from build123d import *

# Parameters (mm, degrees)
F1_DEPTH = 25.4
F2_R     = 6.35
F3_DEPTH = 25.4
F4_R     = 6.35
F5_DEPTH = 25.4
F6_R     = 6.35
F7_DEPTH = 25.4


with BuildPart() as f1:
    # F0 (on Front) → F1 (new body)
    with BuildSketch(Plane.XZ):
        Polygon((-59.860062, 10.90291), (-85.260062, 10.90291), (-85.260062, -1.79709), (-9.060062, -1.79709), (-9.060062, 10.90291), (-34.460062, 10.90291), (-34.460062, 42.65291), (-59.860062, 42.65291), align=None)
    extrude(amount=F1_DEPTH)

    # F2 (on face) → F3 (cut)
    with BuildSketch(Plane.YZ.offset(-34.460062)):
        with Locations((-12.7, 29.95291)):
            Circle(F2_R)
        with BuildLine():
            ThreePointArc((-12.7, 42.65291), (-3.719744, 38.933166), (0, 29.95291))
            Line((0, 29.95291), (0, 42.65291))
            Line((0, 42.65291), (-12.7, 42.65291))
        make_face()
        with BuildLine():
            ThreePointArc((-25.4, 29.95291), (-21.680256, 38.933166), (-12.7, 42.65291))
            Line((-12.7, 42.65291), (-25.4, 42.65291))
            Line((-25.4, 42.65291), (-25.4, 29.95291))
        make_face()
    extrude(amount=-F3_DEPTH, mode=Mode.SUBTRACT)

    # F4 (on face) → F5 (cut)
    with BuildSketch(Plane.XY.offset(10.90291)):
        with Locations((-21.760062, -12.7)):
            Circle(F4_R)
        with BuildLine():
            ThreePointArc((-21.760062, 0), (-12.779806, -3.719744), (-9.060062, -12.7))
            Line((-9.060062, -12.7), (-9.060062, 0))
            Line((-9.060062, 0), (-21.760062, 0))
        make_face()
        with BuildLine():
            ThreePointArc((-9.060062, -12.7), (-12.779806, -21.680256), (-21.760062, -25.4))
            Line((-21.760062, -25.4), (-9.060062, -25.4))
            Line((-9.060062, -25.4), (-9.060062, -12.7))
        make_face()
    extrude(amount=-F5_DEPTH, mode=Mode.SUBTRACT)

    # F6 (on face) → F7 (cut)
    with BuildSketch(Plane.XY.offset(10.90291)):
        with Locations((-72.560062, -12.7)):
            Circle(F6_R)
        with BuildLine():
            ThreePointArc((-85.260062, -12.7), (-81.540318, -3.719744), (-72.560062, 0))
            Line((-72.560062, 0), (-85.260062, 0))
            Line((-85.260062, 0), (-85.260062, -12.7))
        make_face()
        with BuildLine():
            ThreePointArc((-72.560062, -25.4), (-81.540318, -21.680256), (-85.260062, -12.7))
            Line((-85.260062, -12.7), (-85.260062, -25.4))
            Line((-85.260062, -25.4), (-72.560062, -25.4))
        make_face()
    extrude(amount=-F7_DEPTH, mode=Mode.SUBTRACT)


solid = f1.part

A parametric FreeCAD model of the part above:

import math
import FreeCAD as App
import Part
import Sketcher

V = App.Vector
Q = App.Units.Quantity


def add_polygon(sketch, points):
    """Adds a closed chain of lines whose ends are joined by coincident constraints."""
    first, n = sketch.GeometryCount, len(points)
    for a, b in zip(points, points[1:] + points[:1]):
        sketch.addGeometry(Part.LineSegment(App.Vector(*a, 0), App.Vector(*b, 0)), False)
    for i in range(n):
        sketch.addConstraint(Sketcher.Constraint("Coincident", first + i, 2, first + (i + 1) % n, 1))

doc = App.newDocument("Part")
params = doc.addObject("Spreadsheet::Sheet", "Params")
for row, (alias, value) in enumerate([
    ("sketch1_width", "1 in"),
    ("sketch1_height", "0.5 in"),
    ("sketch1_height2", "1.25 in"),
    ("pad1_length", "1 in"),
    ("sketch2_diameter", "0.5 in"),
    ("sketch2_radius", "0.5 in"),
    ("pocket1_length", "1 in"),
    ("sketch3_diameter", "0.5 in"),
    ("sketch3_radius", "0.5 in"),
    ("pocket2_length", "1 in"),
    ("sketch4_diameter", "0.5 in"),
    ("sketch4_radius", "0.5 in"),
    ("pocket3_length", "1 in"),
], start=1):
    params.set(f"A{row}", alias)
    params.set(f"B{row}", "=" + value)
    params.setAlias(f"B{row}", alias)

body = doc.addObject("PartDesign::Body", "Body")

# Sketch on XZ plane
sketch1 = doc.addObject("Sketcher::SketchObject", "Sketch")
body.addObject(sketch1)
sketch1.AttachmentSupport = (doc.XZ_Plane, [""])
sketch1.MapMode = "FlatFace"
add_polygon(sketch1, [(-59.860062, 10.90291), (-85.260062, 10.90291), (-85.260062, -1.79709), (-9.060062, -1.79709), (-9.060062, 10.90291), (-34.460062, 10.90291), (-34.460062, 42.65291), (-59.860062, 42.65291)])  # lines 0-7
sketch1.addConstraint(Sketcher.Constraint("Horizontal", 0))
sketch1.addConstraint(Sketcher.Constraint("Vertical", 1))
sketch1.addConstraint(Sketcher.Constraint("Horizontal", 2))
sketch1.addConstraint(Sketcher.Constraint("Vertical", 3))
sketch1.addConstraint(Sketcher.Constraint("Horizontal", 4))
sketch1.addConstraint(Sketcher.Constraint("Vertical", 5))
sketch1.addConstraint(Sketcher.Constraint("Horizontal", 6))
sketch1.addConstraint(Sketcher.Constraint("Vertical", 7))
sketch1.addConstraint(Sketcher.Constraint("Horizontal", 0, 2, 3, 2))
sketch1.addConstraint(Sketcher.Constraint("Equal", 0, 4))
sketch1.addConstraint(Sketcher.Constraint("Equal", 4, 6))
sketch1.addConstraint(Sketcher.Constraint("DistanceX", 0, 2, 0, 1, Q("1 in")))
sketch1.addConstraint(Sketcher.Constraint("DistanceY", 1, 2, 1, 1, Q("0.5 in")))
sketch1.addConstraint(Sketcher.Constraint("DistanceY", 5, 1, 5, 2, Q("1.25 in")))
sketch1.addConstraint(Sketcher.Constraint("DistanceY", -1, 1, 0, 2, 10.90291))
sketch1.addConstraint(Sketcher.Constraint("DistanceX", 0, 2, -1, 1, 85.260062))
sketch1.setExpression("Constraints[19]", "Params.sketch1_width")
sketch1.setExpression("Constraints[20]", "Params.sketch1_height")
sketch1.setExpression("Constraints[21]", "Params.sketch1_height2")
pad1 = doc.addObject("PartDesign::Pad", "Pad")
body.addObject(pad1)
pad1.Profile = sketch1
pad1.setExpression("Length", "Params.pad1_length")

# Sketch on YZ plane
sketch2 = doc.addObject("Sketcher::SketchObject", "Sketch001")
body.addObject(sketch2)
sketch2.AttachmentSupport = (doc.YZ_Plane, [""])
sketch2.MapMode = "FlatFace"
sketch2.AttachmentOffset = App.Placement(V(0, 0, -34.460062), App.Rotation())
sketch2.addGeometry(Part.Circle(V(-12.7, 29.95291, 0), V(0, 0, 1), 6.35), False)
sketch2.addGeometry(Part.ArcOfCircle(Part.Circle(V(-12.7, 29.95291, 0), V(0, 0, 1), 12.7), math.radians(0.000002), math.radians(89.999998)), False)
sketch2.addGeometry(Part.LineSegment(V(0, 29.95291, 0), V(0, 42.65291, 0)), False)
sketch2.addGeometry(Part.LineSegment(V(0, 42.65291, 0), V(-12.7, 42.65291, 0)), False)
sketch2.addGeometry(Part.ArcOfCircle(Part.Circle(V(-12.7, 29.95291, 0), V(0, 0, 1), 12.7), math.radians(90.000002), math.radians(179.999998)), False)
sketch2.addGeometry(Part.LineSegment(V(-12.7, 42.65291, 0), V(-25.4, 42.65291, 0)), False)
sketch2.addGeometry(Part.LineSegment(V(-25.4, 42.65291, 0), V(-25.4, 29.95291, 0)), False)
sketch2.addConstraint(Sketcher.Constraint("Tangent", 1, 1, 2, 1))
sketch2.addConstraint(Sketcher.Constraint("Coincident", 2, 2, 3, 1))
sketch2.addConstraint(Sketcher.Constraint("Tangent", 3, 2, 1, 2))
sketch2.addConstraint(Sketcher.Constraint("Tangent", 4, 1, 5, 1))
sketch2.addConstraint(Sketcher.Constraint("Coincident", 5, 2, 6, 1))
sketch2.addConstraint(Sketcher.Constraint("Tangent", 6, 2, 4, 2))
sketch2.addConstraint(Sketcher.Constraint("Vertical", 2))
sketch2.addConstraint(Sketcher.Constraint("Horizontal", 3))
sketch2.addConstraint(Sketcher.Constraint("Horizontal", 5))
sketch2.addConstraint(Sketcher.Constraint("Vertical", 6))
sketch2.addConstraint(Sketcher.Constraint("Coincident", 1, 3, 0, 3))
sketch2.addConstraint(Sketcher.Constraint("Coincident", 4, 3, 0, 3))
sketch2.addConstraint(Sketcher.Constraint("Equal", 1, 4))
sketch2.addConstraint(Sketcher.Constraint("PointOnObject", 1, 1, -2))
sketch2.addConstraint(Sketcher.Constraint("Diameter", 0, Q("0.5 in")))
sketch2.addConstraint(Sketcher.Constraint("Radius", 1, Q("0.5 in")))
sketch2.addConstraint(Sketcher.Constraint("DistanceY", -1, 1, 0, 3, 29.95291))
sketch2.setExpression("Constraints[14]", "Params.sketch2_diameter")
sketch2.setExpression("Constraints[15]", "Params.sketch2_radius")
pocket1 = doc.addObject("PartDesign::Pocket", "Pocket")
body.addObject(pocket1)
pocket1.Profile = sketch2
pocket1.setExpression("Length", "Params.pocket1_length")

# Sketch on XY plane
sketch3 = doc.addObject("Sketcher::SketchObject", "Sketch002")
body.addObject(sketch3)
sketch3.AttachmentSupport = (doc.XY_Plane, [""])
sketch3.MapMode = "FlatFace"
sketch3.AttachmentOffset = App.Placement(V(0, 0, 10.90291), App.Rotation())
sketch3.addGeometry(Part.Circle(V(-21.760062, -12.7, 0), V(0, 0, 1), 6.35), False)
sketch3.addGeometry(Part.ArcOfCircle(Part.Circle(V(-21.760062, -12.7, 0), V(0, 0, 1), 12.7), math.radians(0.000002), math.radians(89.999998)), False)
sketch3.addGeometry(Part.LineSegment(V(-9.060062, -12.7, 0), V(-9.060062, 0, 0)), False)
sketch3.addGeometry(Part.LineSegment(V(-9.060062, 0, 0), V(-21.760062, 0, 0)), False)
sketch3.addGeometry(Part.ArcOfCircle(Part.Circle(V(-21.760062, -12.7, 0), V(0, 0, 1), 12.7), math.radians(-89.999998), math.radians(-0.000002)), False)
sketch3.addGeometry(Part.LineSegment(V(-21.760062, -25.4, 0), V(-9.060062, -25.4, 0)), False)
sketch3.addGeometry(Part.LineSegment(V(-9.060062, -25.4, 0), V(-9.060062, -12.7, 0)), False)
sketch3.addConstraint(Sketcher.Constraint("Tangent", 1, 1, 2, 1))
sketch3.addConstraint(Sketcher.Constraint("Coincident", 2, 2, 3, 1))
sketch3.addConstraint(Sketcher.Constraint("Tangent", 3, 2, 1, 2))
sketch3.addConstraint(Sketcher.Constraint("Tangent", 4, 1, 5, 1))
sketch3.addConstraint(Sketcher.Constraint("Coincident", 5, 2, 6, 1))
sketch3.addConstraint(Sketcher.Constraint("Tangent", 6, 2, 4, 2))
sketch3.addConstraint(Sketcher.Constraint("Vertical", 2))
sketch3.addConstraint(Sketcher.Constraint("Horizontal", 3))
sketch3.addConstraint(Sketcher.Constraint("Horizontal", 5))
sketch3.addConstraint(Sketcher.Constraint("Vertical", 6))
sketch3.addConstraint(Sketcher.Constraint("Coincident", 1, 3, 0, 3))
sketch3.addConstraint(Sketcher.Constraint("Coincident", 4, 3, 0, 3))
sketch3.addConstraint(Sketcher.Constraint("Equal", 1, 4))
sketch3.addConstraint(Sketcher.Constraint("PointOnObject", 2, 2, -1))
sketch3.addConstraint(Sketcher.Constraint("Diameter", 0, Q("0.5 in")))
sketch3.addConstraint(Sketcher.Constraint("Radius", 1, Q("0.5 in")))
sketch3.addConstraint(Sketcher.Constraint("DistanceX", 0, 3, -1, 1, 21.760062))
sketch3.setExpression("Constraints[14]", "Params.sketch3_diameter")
sketch3.setExpression("Constraints[15]", "Params.sketch3_radius")
pocket2 = doc.addObject("PartDesign::Pocket", "Pocket001")
body.addObject(pocket2)
pocket2.Profile = sketch3
pocket2.setExpression("Length", "Params.pocket2_length")

# Sketch on XY plane
sketch4 = doc.addObject("Sketcher::SketchObject", "Sketch003")
body.addObject(sketch4)
sketch4.AttachmentSupport = (doc.XY_Plane, [""])
sketch4.MapMode = "FlatFace"
sketch4.AttachmentOffset = App.Placement(V(0, 0, 10.90291), App.Rotation())
sketch4.addGeometry(Part.Circle(V(-72.560062, -12.7, 0), V(0, 0, 1), 6.35), False)
sketch4.addGeometry(Part.ArcOfCircle(Part.Circle(V(-72.560062, -12.7, 0), V(0, 0, 1), 12.7), math.radians(90.000002), math.radians(179.999998)), False)
sketch4.addGeometry(Part.LineSegment(V(-72.560062, 0, 0), V(-85.260062, 0, 0)), False)
sketch4.addGeometry(Part.LineSegment(V(-85.260062, 0, 0), V(-85.260062, -12.7, 0)), False)
sketch4.addGeometry(Part.ArcOfCircle(Part.Circle(V(-72.560062, -12.7, 0), V(0, 0, 1), 12.7), math.radians(-179.999998), math.radians(-90.000002)), False)
sketch4.addGeometry(Part.LineSegment(V(-85.260062, -12.7, 0), V(-85.260062, -25.4, 0)), False)
sketch4.addGeometry(Part.LineSegment(V(-85.260062, -25.4, 0), V(-72.560062, -25.4, 0)), False)
sketch4.addConstraint(Sketcher.Constraint("Tangent", 1, 1, 2, 1))
sketch4.addConstraint(Sketcher.Constraint("Coincident", 2, 2, 3, 1))
sketch4.addConstraint(Sketcher.Constraint("Tangent", 3, 2, 1, 2))
sketch4.addConstraint(Sketcher.Constraint("Tangent", 4, 1, 5, 1))
sketch4.addConstraint(Sketcher.Constraint("Coincident", 5, 2, 6, 1))
sketch4.addConstraint(Sketcher.Constraint("Tangent", 6, 2, 4, 2))
sketch4.addConstraint(Sketcher.Constraint("Horizontal", 2))
sketch4.addConstraint(Sketcher.Constraint("Vertical", 3))
sketch4.addConstraint(Sketcher.Constraint("Vertical", 5))
sketch4.addConstraint(Sketcher.Constraint("Horizontal", 6))
sketch4.addConstraint(Sketcher.Constraint("Coincident", 1, 3, 0, 3))
sketch4.addConstraint(Sketcher.Constraint("Coincident", 4, 3, 0, 3))
sketch4.addConstraint(Sketcher.Constraint("Equal", 1, 4))
sketch4.addConstraint(Sketcher.Constraint("PointOnObject", 1, 1, -1))
sketch4.addConstraint(Sketcher.Constraint("Diameter", 0, Q("0.5 in")))
sketch4.addConstraint(Sketcher.Constraint("Radius", 1, Q("0.5 in")))
sketch4.addConstraint(Sketcher.Constraint("DistanceX", 1, 3, -1, 1, 72.560062))
sketch4.setExpression("Constraints[14]", "Params.sketch4_diameter")
sketch4.setExpression("Constraints[15]", "Params.sketch4_radius")
pocket3 = doc.addObject("PartDesign::Pocket", "Pocket002")
body.addObject(pocket3)
pocket3.Profile = sketch4
pocket3.setExpression("Length", "Params.pocket3_length")

doc.recompute()
